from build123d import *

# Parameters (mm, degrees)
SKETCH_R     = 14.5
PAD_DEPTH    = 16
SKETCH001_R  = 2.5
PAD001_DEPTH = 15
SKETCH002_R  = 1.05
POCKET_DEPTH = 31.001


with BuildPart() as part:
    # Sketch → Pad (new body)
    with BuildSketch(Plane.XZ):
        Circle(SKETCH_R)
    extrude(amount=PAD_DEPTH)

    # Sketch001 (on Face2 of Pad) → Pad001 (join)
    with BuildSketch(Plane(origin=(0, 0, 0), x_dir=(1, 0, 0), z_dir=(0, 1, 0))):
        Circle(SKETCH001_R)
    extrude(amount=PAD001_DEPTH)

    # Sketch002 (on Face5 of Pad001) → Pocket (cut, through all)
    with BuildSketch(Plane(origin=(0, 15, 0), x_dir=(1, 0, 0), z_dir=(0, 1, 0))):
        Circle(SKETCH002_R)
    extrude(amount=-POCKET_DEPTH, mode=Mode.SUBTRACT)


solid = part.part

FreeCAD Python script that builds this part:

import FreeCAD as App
import Part
import Sketcher

doc = App.newDocument("Part")
params = doc.addObject("Spreadsheet::Sheet", "Params")
for row, (alias, value) in enumerate([
    ("sketch1_diameter", "29 mm"),
    ("pad1_length", "16 mm"),
    ("sketch2_diameter", "5 mm"),
    ("pad2_length", "15 mm"),
    ("sketch3_diameter", "2.1 mm"),
], start=1):
    params.set(f"A{row}", alias)
    params.set(f"B{row}", "=" + value)
    params.setAlias(f"B{row}", alias)

body = doc.addObject("PartDesign::Body", "Body")

# Sketch on XZ plane
sketch1 = doc.addObject("Sketcher::SketchObject", "Sketch")
body.addObject(sketch1)
sketch1.AttachmentSupport = (doc.XZ_Plane, [""])
sketch1.MapMode = "FlatFace"
sketch1.addGeometry(Part.Circle(App.Vector(0, 0, 0), App.Vector(0, 0, 1), 14.5), False)
sketch1.addConstraint([
    Sketcher.Constraint("Coincident", 0, 3, -1, 1),
    Sketcher.Constraint("Diameter", 0, 29.0),
])
sketch1.setExpression("Constraints[1]", "Params.sketch1_diameter")
pad1 = doc.addObject("PartDesign::Pad", "Pad")
body.addObject(pad1)
pad1.Profile = sketch1
pad1.setExpression("Length", "Params.pad1_length")

# Sketch on XZ plane
sketch2 = doc.addObject("Sketcher::SketchObject", "Sketch001")
body.addObject(sketch2)
sketch2.AttachmentSupport = (doc.XZ_Plane, [""])
sketch2.MapMode = "FlatFace"
sketch2.addGeometry(Part.Circle(App.Vector(0, 0, 0), App.Vector(0, 0, 1), 2.5), False)
sketch2.addConstraint([
    Sketcher.Constraint("Coincident", 0, 3, -1, 1),
    Sketcher.Constraint("Diameter", 0, 5.0),
])
sketch2.setExpression("Constraints[1]", "Params.sketch2_diameter")
pad2 = doc.addObject("PartDesign::Pad", "Pad001")
body.addObject(pad2)
pad2.Profile = sketch2
pad2.setExpression("Length", "Params.pad2_length")
pad2.Reversed = True

# Sketch on XZ plane
sketch3 = doc.addObject("Sketcher::SketchObject", "Sketch002")
body.addObject(sketch3)
sketch3.AttachmentSupport = (doc.XZ_Plane, [""])
sketch3.MapMode = "FlatFace"
sketch3.AttachmentOffset = App.Placement(App.Vector(0, 0, -15), App.Rotation())
sketch3.addGeometry(Part.Circle(App.Vector(0, 0, 0), App.Vector(0, 0, 1), 1.05), False)
sketch3.addConstraint([
    Sketcher.Constraint("Coincident", 0, 3, -1, 1),
    Sketcher.Constraint("Diameter", 0, 2.1),
])
sketch3.setExpression("Constraints[1]", "Params.sketch3_diameter")
pocket1 = doc.addObject("PartDesign::Pocket", "Pocket")
body.addObject(pocket1)
pocket1.Profile = sketch3
pocket1.Type = "ThroughAll"
pocket1.Reversed = True

doc.recompute()
